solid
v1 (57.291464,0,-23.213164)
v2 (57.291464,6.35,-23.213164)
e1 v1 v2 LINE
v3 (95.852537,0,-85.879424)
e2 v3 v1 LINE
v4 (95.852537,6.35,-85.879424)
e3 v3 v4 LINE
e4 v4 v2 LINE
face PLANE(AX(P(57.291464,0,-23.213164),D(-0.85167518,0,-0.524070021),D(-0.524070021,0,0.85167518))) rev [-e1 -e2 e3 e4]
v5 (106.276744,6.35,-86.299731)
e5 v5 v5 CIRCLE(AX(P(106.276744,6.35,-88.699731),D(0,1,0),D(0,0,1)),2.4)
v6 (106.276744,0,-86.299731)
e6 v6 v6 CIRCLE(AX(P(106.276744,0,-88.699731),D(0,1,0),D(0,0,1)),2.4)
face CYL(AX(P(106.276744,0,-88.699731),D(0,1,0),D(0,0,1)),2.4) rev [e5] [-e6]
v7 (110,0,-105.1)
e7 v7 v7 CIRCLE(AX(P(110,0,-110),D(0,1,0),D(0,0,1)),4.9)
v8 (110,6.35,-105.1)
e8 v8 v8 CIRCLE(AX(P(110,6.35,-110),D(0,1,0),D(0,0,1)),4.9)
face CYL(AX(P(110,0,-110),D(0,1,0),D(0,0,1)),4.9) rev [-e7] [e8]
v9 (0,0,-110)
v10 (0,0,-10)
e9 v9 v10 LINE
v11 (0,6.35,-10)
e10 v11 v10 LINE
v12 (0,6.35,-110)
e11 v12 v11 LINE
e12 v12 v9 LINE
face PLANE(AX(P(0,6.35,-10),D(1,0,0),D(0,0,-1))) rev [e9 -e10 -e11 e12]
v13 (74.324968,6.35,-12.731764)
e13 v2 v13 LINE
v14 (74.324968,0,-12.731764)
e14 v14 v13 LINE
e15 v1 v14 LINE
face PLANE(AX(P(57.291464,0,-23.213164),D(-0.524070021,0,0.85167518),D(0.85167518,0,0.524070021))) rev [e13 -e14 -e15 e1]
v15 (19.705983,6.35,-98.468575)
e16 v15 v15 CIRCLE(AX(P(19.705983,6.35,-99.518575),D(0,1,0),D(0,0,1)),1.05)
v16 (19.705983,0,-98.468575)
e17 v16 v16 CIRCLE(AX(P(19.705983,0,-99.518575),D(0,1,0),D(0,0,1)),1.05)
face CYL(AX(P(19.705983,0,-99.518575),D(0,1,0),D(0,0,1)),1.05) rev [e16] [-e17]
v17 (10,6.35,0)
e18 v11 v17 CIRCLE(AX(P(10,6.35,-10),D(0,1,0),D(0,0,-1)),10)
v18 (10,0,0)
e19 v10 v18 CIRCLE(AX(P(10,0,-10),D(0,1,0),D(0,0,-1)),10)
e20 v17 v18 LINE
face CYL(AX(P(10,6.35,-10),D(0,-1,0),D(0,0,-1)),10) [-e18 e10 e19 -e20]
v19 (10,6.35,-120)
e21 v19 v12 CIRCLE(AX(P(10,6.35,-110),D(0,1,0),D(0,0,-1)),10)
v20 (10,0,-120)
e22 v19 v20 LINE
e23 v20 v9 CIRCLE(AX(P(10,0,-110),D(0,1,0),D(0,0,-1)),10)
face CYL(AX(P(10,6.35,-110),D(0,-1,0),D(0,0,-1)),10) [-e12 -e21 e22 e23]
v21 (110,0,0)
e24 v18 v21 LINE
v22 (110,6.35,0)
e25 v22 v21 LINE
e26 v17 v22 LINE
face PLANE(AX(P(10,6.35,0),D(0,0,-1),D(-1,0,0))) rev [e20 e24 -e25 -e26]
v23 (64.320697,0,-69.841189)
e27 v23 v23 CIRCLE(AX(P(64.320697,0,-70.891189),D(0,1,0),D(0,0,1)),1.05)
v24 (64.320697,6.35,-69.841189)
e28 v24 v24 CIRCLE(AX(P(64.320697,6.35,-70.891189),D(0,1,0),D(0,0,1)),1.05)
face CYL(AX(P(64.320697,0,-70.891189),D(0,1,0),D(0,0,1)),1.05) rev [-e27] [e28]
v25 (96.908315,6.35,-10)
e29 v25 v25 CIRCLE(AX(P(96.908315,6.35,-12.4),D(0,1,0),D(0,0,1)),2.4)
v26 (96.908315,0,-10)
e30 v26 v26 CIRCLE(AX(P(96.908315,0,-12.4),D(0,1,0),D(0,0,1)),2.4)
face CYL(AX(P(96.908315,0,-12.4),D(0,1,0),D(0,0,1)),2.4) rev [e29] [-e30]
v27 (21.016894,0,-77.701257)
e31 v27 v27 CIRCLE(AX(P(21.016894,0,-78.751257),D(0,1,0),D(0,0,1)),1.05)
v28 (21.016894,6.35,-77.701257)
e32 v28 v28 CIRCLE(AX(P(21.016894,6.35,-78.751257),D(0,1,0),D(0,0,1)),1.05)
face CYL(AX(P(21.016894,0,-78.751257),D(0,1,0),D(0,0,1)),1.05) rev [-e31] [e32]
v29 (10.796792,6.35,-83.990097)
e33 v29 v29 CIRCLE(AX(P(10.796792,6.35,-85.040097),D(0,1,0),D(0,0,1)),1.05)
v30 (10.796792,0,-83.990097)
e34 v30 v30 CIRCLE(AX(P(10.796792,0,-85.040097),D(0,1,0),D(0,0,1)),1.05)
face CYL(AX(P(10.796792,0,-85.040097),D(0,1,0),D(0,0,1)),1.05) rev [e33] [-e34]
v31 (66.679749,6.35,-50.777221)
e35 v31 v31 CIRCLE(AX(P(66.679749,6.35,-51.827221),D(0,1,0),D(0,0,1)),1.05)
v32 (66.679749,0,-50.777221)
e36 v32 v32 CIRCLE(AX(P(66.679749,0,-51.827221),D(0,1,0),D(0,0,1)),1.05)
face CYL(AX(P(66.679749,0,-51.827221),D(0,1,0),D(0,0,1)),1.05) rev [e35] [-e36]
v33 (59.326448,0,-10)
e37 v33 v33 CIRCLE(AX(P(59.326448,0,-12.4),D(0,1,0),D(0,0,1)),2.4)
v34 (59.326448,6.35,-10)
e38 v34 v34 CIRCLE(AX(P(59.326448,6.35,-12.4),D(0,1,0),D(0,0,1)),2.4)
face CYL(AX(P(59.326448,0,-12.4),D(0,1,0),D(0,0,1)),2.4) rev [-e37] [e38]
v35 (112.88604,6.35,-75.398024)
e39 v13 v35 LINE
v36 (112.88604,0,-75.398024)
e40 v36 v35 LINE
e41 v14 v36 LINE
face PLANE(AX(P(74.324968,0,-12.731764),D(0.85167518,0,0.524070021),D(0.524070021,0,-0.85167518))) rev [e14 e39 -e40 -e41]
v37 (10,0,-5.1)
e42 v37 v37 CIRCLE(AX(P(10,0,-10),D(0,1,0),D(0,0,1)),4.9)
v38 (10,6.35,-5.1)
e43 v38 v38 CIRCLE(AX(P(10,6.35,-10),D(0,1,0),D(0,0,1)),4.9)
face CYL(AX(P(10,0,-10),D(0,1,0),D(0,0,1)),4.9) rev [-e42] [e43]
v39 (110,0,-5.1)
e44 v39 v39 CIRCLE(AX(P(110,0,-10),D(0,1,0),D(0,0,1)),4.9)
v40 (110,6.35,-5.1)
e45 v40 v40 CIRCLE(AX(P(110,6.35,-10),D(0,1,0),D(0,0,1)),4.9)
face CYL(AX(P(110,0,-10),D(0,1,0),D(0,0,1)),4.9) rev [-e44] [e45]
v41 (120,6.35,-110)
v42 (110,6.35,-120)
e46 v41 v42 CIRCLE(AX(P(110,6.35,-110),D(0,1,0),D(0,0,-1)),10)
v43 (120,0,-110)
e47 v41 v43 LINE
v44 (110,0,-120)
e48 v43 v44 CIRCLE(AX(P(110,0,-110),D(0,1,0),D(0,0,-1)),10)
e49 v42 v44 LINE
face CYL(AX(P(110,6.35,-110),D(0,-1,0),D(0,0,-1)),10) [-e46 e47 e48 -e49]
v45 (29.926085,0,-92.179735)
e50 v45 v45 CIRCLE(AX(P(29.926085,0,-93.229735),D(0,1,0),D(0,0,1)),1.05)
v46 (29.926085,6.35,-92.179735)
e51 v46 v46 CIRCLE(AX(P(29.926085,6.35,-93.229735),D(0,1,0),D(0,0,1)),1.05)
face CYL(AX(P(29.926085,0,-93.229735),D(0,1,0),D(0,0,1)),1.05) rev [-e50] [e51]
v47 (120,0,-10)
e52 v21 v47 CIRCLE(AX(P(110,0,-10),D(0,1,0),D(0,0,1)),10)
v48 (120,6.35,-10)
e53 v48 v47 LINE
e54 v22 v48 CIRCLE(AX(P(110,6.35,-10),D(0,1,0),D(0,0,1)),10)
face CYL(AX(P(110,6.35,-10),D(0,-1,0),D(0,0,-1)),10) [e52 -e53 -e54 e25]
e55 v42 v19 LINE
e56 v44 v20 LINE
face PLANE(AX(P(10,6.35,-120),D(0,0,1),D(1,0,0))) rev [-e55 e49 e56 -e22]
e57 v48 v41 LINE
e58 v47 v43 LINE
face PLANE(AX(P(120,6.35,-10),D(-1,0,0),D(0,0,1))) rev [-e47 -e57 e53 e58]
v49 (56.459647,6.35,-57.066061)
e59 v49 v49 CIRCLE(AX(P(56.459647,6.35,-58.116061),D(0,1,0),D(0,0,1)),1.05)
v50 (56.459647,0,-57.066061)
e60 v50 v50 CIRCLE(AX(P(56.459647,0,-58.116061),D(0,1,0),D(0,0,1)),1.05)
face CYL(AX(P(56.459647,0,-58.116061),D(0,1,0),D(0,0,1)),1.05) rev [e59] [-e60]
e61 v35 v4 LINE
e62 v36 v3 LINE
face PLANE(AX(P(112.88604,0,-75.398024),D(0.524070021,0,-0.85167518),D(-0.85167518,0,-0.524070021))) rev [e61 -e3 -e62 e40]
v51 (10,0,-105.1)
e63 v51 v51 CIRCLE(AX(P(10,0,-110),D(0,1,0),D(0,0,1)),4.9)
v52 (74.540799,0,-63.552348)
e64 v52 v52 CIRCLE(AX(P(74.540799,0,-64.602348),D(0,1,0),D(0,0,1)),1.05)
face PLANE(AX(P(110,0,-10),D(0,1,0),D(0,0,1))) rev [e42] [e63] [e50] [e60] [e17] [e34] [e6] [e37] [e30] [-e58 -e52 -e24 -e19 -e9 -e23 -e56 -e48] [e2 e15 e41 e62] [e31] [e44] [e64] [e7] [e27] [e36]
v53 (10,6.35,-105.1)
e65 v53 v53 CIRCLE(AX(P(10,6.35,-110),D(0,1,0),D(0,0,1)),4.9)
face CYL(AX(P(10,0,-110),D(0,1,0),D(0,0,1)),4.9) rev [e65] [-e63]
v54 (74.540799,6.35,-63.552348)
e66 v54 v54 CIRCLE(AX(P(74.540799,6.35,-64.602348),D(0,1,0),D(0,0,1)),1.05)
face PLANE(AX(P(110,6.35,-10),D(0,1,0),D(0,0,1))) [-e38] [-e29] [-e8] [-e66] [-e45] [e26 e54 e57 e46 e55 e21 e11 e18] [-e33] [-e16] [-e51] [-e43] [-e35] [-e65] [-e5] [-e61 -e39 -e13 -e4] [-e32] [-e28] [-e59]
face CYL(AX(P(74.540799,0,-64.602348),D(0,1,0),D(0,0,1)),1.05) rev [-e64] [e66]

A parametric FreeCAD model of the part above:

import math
import FreeCAD as App
import Part
import Sketcher

V = App.Vector
Q = App.Units.Quantity

doc = App.newDocument("Part")
body = doc.addObject("PartDesign::Body", "Body")

sketch1 = body.newObject("Sketcher::SketchObject", "Sketch")
sketch1.AttachmentSupport = (doc.getObject("XZ_Plane"), [""])
sketch1.MapMode = "FlatFace"
sketch1.addGeometry([
    Part.LineSegment(V(10, 0, 0), V(110, 0, 0)),
    Part.ArcOfCircle(Part.Circle(V(110, -10, 0), V(0, 0, 1), 10), math.radians(0), math.radians(90)),
    Part.LineSegment(V(120, -10, 0), V(120, -110, 0)),
    Part.ArcOfCircle(Part.Circle(V(110, -110, 0), V(0, 0, 1), 10), math.radians(-90), math.radians(0)),
    Part.LineSegment(V(110, -120, 0), V(10, -120, 0)),
    Part.ArcOfCircle(Part.Circle(V(10, -110, 0), V(0, 0, 1), 10), math.radians(180), math.radians(270)),
    Part.LineSegment(V(0, -110, 0), V(0, -10, 0)),
    Part.ArcOfCircle(Part.Circle(V(10, -10, 0), V(0, 0, 1), 10), math.radians(90), math.radians(180)),
], False)
sketch1.addConstraint([
    Sketcher.Constraint("Tangent", 0, 2, 1, 2),
    Sketcher.Constraint("Tangent", 1, 1, 2, 1),
    Sketcher.Constraint("Tangent", 2, 2, 3, 2),
    Sketcher.Constraint("Tangent", 3, 1, 4, 1),
    Sketcher.Constraint("Tangent", 4, 2, 5, 2),
    Sketcher.Constraint("Tangent", 5, 1, 6, 1),
    Sketcher.Constraint("Tangent", 6, 2, 7, 2),
    Sketcher.Constraint("Tangent", 7, 1, 0, 1),
    Sketcher.Constraint("Horizontal", 0),
    Sketcher.Constraint("Vertical", 2),
    Sketcher.Constraint("Horizontal", 4),
    Sketcher.Constraint("Vertical", 6),
    Sketcher.Constraint("Equal", 1, 3),
    Sketcher.Constraint("Equal", 3, 5),
    Sketcher.Constraint("Equal", 5, 7),
    Sketcher.Constraint("PointOnObject", 0, 2, -1),
    Sketcher.Constraint("PointOnObject", 5, 1, -2),
    Sketcher.Constraint("Equal", 4, 2),
    Sketcher.Constraint("Radius", 1, Q("10 mm")),
    Sketcher.Constraint("DistanceX", 0, 1, 0, 2, Q("100 mm")),
])
pad1 = body.newObject("PartDesign::Pad", "Pad")
pad1.Profile = sketch1
pad1.Length = 6.35
pad1.Reversed = True

sketch2 = body.newObject("Sketcher::SketchObject", "Sketch001")
sketch2.AttachmentSupport = (doc.getObject("XZ_Plane"), [""])
sketch2.MapMode = "FlatFace"
sketch2.AttachmentOffset = App.Placement(V(0, 0, -6.35), App.Rotation())
sketch2.addGeometry([
    Part.Circle(V(59.3, -12.4, 0), V(0, 0, 1), 2.4),
    Part.Circle(V(96.9, -12.4, 0), V(0, 0, 1), 2.4),
    Part.Circle(V(106.3, -88.7, 0), V(0, 0, 1), 2.4),
    Part.Circle(V(10, -110, 0), V(0, 0, 1), 4.9),
    Part.Circle(V(10, -10, 0), V(0, 0, 1), 4.9),
    Part.Circle(V(110, -110, 0), V(0, 0, 1), 4.9),
    Part.Circle(V(110, -10, 0), V(0, 0, 1), 4.9),
    Part.LineSegment(V(57.3, -23.2, 0), V(74.3, -12.7, 0)),
    Part.LineSegment(V(74.3, -12.7, 0), V(112.9, -75.4, 0)),
    Part.LineSegment(V(112.9, -75.4, 0), V(95.9, -85.9, 0)),
    Part.LineSegment(V(95.9, -85.9, 0), V(57.3, -23.2, 0)),
], False)
sketch2.addConstraint([
    Sketcher.Constraint("Coincident", 7, 2, 8, 1),
    Sketcher.Constraint("Coincident", 8, 2, 9, 1),
    Sketcher.Constraint("Coincident", 9, 2, 10, 1),
    Sketcher.Constraint("Coincident", 10, 2, 7, 1),
    Sketcher.Constraint("Equal", 0, 1),
    Sketcher.Constraint("Equal", 1, 2),
    Sketcher.Constraint("Equal", 3, 4),
    Sketcher.Constraint("Equal", 4, 5),
    Sketcher.Constraint("Equal", 5, 6),
    Sketcher.Constraint("Perpendicular", 7, 8),
    Sketcher.Constraint("Perpendicular", 8, 9),
    Sketcher.Constraint("Perpendicular", 9, 10),
    Sketcher.Constraint("Horizontal", 0, 3, 1, 3),
    Sketcher.Constraint("Horizontal", 3, 3, 5, 3),
    Sketcher.Constraint("Horizontal", 4, 3, 6, 3),
    Sketcher.Constraint("Vertical", 3, 3, 4, 3),
    Sketcher.Constraint("Vertical", 5, 3, 6, 3),
    Sketcher.Constraint("Diameter", 0, Q("4.8 mm")),
    Sketcher.Constraint("Diameter", 3, Q("9.8 mm")),
    Sketcher.Constraint("Distance", 7, Q("20 mm")),
    Sketcher.Constraint("DistanceX", -1, 1, 3, 3, Q("10 mm")),
    Sketcher.Constraint("DistanceY", 3, 3, -1, 1, Q("110 mm")),
    Sketcher.Constraint("DistanceY", 4, 3, -1, 1, Q("10 mm")),
    Sketcher.Constraint("DistanceX", -1, 1, 5, 3, Q("110 mm")),
    Sketcher.Constraint("DistanceY", 0, 3, -1, 1, Q("12.4 mm")),
    Sketcher.Constraint("Distance", 8, Q("73.58 mm")),
    Sketcher.Constraint("DistanceY", 9, 2, 8, 2, Q("10.4814 mm")),
    Sketcher.Constraint("DistanceY", 2, 3, -1, 1, Q("88.699731 mm")),
    Sketcher.Constraint("DistanceX", -1, 1, 8, 2, Q("112.88604 mm")),
    Sketcher.Constraint("DistanceX", 1, 3, 2, 3, Q("9.368429 mm")),
    Sketcher.Constraint("DistanceX", 0, 3, 7, 2, Q("14.99852 mm")),
    Sketcher.Constraint("DistanceX", 9, 2, 1, 3, Q("1.055778 mm")),
    Sketcher.Constraint("DistanceY", 7, 2, -1, 1, Q("12.731764 mm")),
])
pocket1 = body.newObject("PartDesign::Pocket", "Pocket")
pocket1.Profile = sketch2
pocket1.Type = "ThroughAll"
pocket1.Reversed = True

sketch3 = body.newObject("Sketcher::SketchObject", "Sketch002")
sketch3.AttachmentSupport = (doc.getObject("XZ_Plane"), [""])
sketch3.MapMode = "FlatFace"
sketch3.AttachmentOffset = App.Placement(V(0, 0, -6.35), App.Rotation())
sketch3.addGeometry([
    Part.Circle(V(66.7, -51.8, 0), V(0, 0, 1), 1.1),
    Part.Circle(V(56.5, -58.1, 0), V(0, 0, 1), 1.1),
    Part.Circle(V(74.5, -64.6, 0), V(0, 0, 1), 1.1),
    Part.Circle(V(64.3, -70.9, 0), V(0, 0, 1), 1.1),
    Part.Circle(V(10.8, -85, 0), V(0, 0, 1), 1.1),
    Part.Circle(V(21, -78.8, 0), V(0, 0, 1), 1.1),
    Part.Circle(V(29.9, -93.2, 0), V(0, 0, 1), 1.1),
    Part.Circle(V(19.7, -99.5, 0), V(0, 0, 1), 1.1),
], False)
sketch3.addConstraint([
    Sketcher.Constraint("Equal", 0, 1),
    Sketcher.Constraint("Equal", 1, 2),
    Sketcher.Constraint("Equal", 2, 3),
    Sketcher.Constraint("Equal", 3, 4),
    Sketcher.Constraint("Equal", 4, 5),
    Sketcher.Constraint("Equal", 5, 6),
    Sketcher.Constraint("Equal", 6, 7),
    Sketcher.Constraint("Diameter", 0, Q("2.1 mm")),
    Sketcher.Constraint("DistanceX", -1, 1, 2, 3, Q("74.540799 mm")),
    Sketcher.Constraint("DistanceX", -1, 1, 0, 3, Q("66.679749 mm")),
    Sketcher.Constraint("DistanceY", 0, 3, -1, 1, Q("51.827221 mm")),
    Sketcher.Constraint("DistanceY", 1, 3, -1, 1, Q("58.116061 mm")),
    Sketcher.Constraint("DistanceY", 2, 3, -1, 1, Q("64.602348 mm")),
    Sketcher.Constraint("DistanceY", 3, 3, -1, 1, Q("70.891189 mm")),
    Sketcher.Constraint("DistanceX", 1, 3, 3, 3, Q("7.86105 mm")),
    Sketcher.Constraint("DistanceX", 3, 3, 0, 3, Q("2.359052 mm")),
    Sketcher.Constraint("DistanceY", 4, 3, 3, 3, Q("14.148908 mm")),
    Sketcher.Constraint("DistanceY", 4, 3, 5, 3, Q("6.28884 mm")),
    Sketcher.Constraint("DistanceX", 5, 3, 6, 3, Q("8.90919 mm")),
    Sketcher.Constraint("DistanceY", 6, 3, 5, 3, Q("14.478478 mm")),
    Sketcher.Constraint("DistanceY", 7, 3, 6, 3, Q("6.28884 mm")),
    Sketcher.Constraint("DistanceX", 4, 3, 7, 3, Q("8.90919 mm")),
    Sketcher.Constraint("DistanceX", 7, 3, 5, 3, Q("1.310912 mm")),
    Sketcher.Constraint("DistanceX", -1, 1, 4, 3, Q("10.796792 mm")),
])
pocket2 = body.newObject("PartDesign::Pocket", "Pocket001")
pocket2.Profile = sketch3
pocket2.Type = "ThroughAll"
pocket2.Reversed = True

doc.recompute()
